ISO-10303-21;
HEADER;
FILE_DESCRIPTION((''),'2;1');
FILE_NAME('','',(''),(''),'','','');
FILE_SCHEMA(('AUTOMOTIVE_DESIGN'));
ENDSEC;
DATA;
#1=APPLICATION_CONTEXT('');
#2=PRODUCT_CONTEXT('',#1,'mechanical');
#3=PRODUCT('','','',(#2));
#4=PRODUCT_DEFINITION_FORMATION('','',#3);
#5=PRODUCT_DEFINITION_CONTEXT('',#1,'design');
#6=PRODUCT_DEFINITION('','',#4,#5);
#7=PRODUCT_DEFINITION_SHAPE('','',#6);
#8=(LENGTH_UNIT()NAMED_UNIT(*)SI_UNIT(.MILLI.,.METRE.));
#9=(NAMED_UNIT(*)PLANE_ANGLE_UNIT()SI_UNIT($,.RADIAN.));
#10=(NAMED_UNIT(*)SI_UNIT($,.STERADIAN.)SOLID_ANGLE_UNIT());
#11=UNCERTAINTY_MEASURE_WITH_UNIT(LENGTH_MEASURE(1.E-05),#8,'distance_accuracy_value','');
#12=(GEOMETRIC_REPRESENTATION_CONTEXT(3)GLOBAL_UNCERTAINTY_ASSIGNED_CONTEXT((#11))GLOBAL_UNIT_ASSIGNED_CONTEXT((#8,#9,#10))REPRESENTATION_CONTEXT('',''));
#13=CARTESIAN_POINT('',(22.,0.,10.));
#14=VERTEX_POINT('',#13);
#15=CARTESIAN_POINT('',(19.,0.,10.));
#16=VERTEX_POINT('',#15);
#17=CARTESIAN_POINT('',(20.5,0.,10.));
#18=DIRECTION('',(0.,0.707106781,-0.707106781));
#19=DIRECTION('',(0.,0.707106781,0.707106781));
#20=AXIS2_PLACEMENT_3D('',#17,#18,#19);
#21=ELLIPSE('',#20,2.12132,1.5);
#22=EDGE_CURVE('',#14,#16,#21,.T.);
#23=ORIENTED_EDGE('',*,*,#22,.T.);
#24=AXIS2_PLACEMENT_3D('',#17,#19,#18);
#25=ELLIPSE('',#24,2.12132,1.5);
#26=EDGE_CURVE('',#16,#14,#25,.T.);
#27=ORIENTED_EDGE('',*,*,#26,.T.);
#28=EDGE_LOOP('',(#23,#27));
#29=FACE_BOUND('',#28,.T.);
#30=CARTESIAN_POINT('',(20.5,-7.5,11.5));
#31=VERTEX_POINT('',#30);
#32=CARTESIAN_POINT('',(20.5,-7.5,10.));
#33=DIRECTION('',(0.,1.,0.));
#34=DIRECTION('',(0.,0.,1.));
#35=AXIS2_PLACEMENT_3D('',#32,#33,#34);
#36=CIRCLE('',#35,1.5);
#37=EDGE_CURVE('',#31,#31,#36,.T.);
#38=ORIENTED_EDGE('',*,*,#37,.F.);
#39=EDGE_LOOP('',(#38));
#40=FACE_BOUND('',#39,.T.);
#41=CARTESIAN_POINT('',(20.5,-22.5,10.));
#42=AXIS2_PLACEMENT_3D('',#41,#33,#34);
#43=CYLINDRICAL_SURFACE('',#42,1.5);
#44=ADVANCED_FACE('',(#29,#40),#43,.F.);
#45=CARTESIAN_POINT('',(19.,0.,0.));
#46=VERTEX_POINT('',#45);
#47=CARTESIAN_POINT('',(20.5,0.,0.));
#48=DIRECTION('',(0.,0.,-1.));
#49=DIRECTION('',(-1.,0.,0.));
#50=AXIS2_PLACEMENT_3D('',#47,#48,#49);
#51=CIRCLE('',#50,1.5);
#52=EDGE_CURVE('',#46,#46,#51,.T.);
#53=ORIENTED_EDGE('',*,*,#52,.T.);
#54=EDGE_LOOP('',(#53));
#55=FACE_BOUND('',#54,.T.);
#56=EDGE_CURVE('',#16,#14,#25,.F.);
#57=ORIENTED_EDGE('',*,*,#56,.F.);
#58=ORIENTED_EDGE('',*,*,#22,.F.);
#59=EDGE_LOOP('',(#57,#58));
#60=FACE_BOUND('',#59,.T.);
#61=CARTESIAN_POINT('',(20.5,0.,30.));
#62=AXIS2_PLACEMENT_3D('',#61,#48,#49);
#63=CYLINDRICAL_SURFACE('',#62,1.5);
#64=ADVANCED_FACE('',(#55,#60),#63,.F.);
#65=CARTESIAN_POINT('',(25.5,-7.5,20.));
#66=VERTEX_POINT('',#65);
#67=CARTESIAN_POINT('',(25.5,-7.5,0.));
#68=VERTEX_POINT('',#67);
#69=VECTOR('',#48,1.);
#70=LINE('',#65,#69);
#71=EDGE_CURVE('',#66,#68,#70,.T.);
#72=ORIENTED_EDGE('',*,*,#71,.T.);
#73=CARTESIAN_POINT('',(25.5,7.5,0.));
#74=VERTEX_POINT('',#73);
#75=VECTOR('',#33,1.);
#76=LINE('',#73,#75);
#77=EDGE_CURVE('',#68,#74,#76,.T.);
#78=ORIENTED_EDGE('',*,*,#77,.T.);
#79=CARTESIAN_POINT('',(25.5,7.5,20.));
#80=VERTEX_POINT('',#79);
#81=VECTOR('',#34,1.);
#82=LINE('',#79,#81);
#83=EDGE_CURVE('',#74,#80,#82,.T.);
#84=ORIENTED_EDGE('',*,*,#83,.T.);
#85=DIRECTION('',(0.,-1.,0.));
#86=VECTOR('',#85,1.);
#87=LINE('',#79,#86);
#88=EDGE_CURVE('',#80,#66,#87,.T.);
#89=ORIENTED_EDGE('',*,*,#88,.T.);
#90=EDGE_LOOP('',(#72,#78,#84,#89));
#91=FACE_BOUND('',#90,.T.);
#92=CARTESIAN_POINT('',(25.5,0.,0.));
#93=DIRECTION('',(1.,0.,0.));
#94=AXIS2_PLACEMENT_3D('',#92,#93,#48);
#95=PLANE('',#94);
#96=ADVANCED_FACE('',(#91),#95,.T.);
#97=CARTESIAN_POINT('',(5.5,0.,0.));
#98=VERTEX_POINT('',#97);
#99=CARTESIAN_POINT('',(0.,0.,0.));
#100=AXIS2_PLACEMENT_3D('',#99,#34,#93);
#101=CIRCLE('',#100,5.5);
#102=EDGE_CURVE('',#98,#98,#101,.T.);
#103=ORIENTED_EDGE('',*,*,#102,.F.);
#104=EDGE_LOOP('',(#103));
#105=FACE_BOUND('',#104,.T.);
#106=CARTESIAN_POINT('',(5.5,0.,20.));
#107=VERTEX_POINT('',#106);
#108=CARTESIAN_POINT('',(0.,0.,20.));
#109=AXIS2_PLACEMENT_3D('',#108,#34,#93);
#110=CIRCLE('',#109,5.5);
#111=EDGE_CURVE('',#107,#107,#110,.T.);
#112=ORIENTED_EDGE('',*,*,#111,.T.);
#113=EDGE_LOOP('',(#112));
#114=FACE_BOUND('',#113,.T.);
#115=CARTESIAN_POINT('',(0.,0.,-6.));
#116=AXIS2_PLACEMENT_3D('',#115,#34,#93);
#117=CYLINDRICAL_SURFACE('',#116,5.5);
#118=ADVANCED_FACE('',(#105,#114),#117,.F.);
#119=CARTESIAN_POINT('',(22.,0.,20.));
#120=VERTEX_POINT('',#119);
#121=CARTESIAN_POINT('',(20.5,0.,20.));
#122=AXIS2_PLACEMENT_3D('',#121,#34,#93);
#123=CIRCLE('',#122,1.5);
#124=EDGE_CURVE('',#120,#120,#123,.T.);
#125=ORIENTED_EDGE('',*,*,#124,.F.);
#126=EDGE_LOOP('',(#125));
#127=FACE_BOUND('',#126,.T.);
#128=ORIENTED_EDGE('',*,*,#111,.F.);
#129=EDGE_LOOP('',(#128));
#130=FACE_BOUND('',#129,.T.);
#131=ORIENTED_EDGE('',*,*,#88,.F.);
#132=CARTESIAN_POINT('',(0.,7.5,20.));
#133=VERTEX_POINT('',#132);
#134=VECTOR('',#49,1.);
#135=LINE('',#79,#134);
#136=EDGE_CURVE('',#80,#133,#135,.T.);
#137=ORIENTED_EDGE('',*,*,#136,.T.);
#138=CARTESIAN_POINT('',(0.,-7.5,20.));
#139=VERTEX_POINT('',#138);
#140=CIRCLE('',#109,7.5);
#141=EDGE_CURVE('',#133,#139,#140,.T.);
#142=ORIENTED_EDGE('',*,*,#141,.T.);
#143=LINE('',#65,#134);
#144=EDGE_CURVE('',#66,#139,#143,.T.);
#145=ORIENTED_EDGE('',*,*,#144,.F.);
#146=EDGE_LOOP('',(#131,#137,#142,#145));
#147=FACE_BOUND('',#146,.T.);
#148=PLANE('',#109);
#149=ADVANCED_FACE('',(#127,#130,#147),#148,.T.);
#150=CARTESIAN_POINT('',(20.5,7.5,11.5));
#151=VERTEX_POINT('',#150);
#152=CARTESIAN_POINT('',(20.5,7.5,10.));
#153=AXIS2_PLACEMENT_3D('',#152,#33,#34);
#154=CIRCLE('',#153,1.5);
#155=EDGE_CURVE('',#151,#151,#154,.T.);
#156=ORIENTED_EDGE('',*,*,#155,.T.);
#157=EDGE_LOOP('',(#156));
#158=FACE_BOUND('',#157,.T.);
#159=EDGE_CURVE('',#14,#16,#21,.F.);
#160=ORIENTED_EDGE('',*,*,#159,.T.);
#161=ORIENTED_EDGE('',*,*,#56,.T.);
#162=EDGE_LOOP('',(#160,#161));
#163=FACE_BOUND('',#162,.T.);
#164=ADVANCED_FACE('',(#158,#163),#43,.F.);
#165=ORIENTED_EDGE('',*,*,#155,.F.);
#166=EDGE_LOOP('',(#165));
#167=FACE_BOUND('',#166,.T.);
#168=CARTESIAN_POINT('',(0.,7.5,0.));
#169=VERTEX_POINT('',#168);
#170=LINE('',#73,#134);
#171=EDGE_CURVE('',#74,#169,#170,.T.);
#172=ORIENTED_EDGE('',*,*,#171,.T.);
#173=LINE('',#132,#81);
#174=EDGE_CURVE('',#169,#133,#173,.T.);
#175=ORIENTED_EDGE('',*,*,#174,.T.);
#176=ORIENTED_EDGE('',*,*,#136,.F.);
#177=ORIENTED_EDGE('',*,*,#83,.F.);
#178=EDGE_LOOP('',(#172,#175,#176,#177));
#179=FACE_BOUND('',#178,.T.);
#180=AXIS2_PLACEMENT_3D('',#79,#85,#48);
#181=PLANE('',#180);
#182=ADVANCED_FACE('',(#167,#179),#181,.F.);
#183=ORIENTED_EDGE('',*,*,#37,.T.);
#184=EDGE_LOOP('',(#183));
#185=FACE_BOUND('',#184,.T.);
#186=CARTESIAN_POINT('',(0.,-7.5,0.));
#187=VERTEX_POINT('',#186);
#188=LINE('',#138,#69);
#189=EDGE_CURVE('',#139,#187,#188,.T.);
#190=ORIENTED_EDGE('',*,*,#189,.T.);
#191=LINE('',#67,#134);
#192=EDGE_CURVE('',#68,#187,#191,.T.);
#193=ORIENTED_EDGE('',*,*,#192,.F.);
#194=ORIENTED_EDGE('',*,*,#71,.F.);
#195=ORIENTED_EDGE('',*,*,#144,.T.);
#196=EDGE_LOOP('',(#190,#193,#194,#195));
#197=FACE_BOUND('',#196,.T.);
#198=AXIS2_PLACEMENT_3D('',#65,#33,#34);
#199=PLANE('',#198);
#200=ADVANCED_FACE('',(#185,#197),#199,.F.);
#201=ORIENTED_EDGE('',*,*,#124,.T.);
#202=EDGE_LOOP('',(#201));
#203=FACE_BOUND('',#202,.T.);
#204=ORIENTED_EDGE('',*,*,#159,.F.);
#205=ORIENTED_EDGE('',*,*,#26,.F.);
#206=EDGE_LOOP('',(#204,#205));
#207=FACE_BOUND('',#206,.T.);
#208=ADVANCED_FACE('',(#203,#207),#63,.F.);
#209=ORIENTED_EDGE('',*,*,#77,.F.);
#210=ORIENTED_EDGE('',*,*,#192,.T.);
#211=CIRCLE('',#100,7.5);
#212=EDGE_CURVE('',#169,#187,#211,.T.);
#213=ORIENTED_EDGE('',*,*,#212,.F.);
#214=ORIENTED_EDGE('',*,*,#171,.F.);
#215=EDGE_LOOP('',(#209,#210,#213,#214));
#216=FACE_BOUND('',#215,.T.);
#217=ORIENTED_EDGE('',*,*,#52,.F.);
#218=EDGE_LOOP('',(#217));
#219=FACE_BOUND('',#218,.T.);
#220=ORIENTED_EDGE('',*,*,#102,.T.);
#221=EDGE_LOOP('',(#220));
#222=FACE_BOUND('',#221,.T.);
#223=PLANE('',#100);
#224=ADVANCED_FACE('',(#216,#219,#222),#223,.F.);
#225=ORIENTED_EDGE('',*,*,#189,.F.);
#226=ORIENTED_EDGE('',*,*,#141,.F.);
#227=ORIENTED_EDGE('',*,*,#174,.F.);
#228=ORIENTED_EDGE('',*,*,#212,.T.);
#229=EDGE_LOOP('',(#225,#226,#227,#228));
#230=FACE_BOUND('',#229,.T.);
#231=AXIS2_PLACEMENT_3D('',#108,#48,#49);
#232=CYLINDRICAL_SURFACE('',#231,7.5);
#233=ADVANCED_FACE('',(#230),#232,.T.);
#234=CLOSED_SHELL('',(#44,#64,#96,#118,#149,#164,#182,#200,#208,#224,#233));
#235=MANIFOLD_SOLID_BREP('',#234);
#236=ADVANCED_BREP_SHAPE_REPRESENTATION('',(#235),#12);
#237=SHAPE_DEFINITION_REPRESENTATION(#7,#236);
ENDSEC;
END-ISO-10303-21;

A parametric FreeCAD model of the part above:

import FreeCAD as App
import Part
import Sketcher
from FreeCAD import Vector


def add_polygon(sketch, points):
    """Adds a closed chain of lines whose ends are joined by coincident constraints."""
    first, n = sketch.GeometryCount, len(points)
    for a, b in zip(points, points[1:] + points[:1]):
        sketch.addGeometry(Part.LineSegment(App.Vector(*a, 0), App.Vector(*b, 0)), False)
    for i in range(n):
        sketch.addConstraint(Sketcher.Constraint("Coincident", first + i, 2, first + (i + 1) % n, 1))

doc = App.newDocument("Part")
body = doc.addObject("PartDesign::Body", "Body")

sketch1 = body.newObject("Sketcher::SketchObject", "Sketch")
sketch1.AttachmentSupport = (doc.getObject("XY_Plane"), [""])
sketch1.MapMode = "FlatFace"
sketch1.addGeometry(Part.Circle(Vector(0, 0, 0), Vector(0, 0, 1), 8), False)
sketch1.addConstraint([
    Sketcher.Constraint("Coincident", 0, 3, -1, 1),
    Sketcher.Constraint("Diameter", 0, 15.0),
])
pad1 = body.newObject("PartDesign::Pad", "Pad")
pad1.Profile = sketch1
pad1.Length = 20

sketch2 = body.newObject("Sketcher::SketchObject", "Sketch001")
sketch2.AttachmentSupport = (doc.getObject("YZ_Plane"), [""])
sketch2.MapMode = "FlatFace"
add_polygon(sketch2, [(8, 20), (-8, 20), (-8, 0), (8, 0)])
sketch2.addConstraint([
    Sketcher.Constraint("Horizontal", 0),
    Sketcher.Constraint("Vertical", 1),
    Sketcher.Constraint("Horizontal", 2),
    Sketcher.Constraint("Vertical", 3),
    Sketcher.Constraint("Symmetric", 1, 2, 2, 2, -1, 1),
    Sketcher.Constraint("DistanceX", 0, 2, 0, 1, 15.0),
    Sketcher.Constraint("DistanceY", 1, 2, 1, 1, 20.0),
])
pad2 = body.newObject("PartDesign::Pad", "Pad001")
pad2.Profile = sketch2
pad2.Length = 25.5

sketch3 = body.newObject("Sketcher::SketchObject", "Sketch002")
sketch3.AttachmentSupport = (doc.getObject("XY_Plane"), [""])
sketch3.MapMode = "FlatFace"
sketch3.AttachmentOffset = App.Placement(Vector(0, 0, 20), App.Rotation())
sketch3.addGeometry(Part.Circle(Vector(0, 0, 0), Vector(0, 0, 1), 6), False)
sketch3.addConstraint([
    Sketcher.Constraint("Coincident", 0, 3, -1, 1),
    Sketcher.Constraint("Diameter", 0, 11.0),
])
pocket1 = body.newObject("PartDesign::Pocket", "Pocket")
pocket1.Profile = sketch3
pocket1.Length = 26

sketch4 = body.newObject("Sketcher::SketchObject", "Sketch003")
sketch4.AttachmentSupport = (doc.getObject("XZ_Plane"), [""])
sketch4.MapMode = "FlatFace"
sketch4.AttachmentOffset = App.Placement(Vector(0, 0, -7.5), App.Rotation())
sketch4.addGeometry(Part.Circle(Vector(20.5, 10, 0), Vector(0, 0, 1), 1.5), False)
sketch4.addConstraint([
    Sketcher.Constraint("Diameter", 0, 3.0),
    Sketcher.Constraint("DistanceY", -1, 1, 0, 3, 10.0),
    Sketcher.Constraint("DistanceX", -1, 1, 0, 3, 20.5),
])
pocket2 = body.newObject("PartDesign::Pocket", "Pocket001")
pocket2.Profile = sketch4
pocket2.Length = 30
pocket2.Reversed = True

sketch5 = body.newObject("Sketcher::SketchObject", "Sketch004")
sketch5.AttachmentSupport = (doc.getObject("XY_Plane"), [""])
sketch5.MapMode = "FlatFace"
sketch5.addGeometry(Part.Circle(Vector(20.5, 0, 0), Vector(0, 0, 1), 1.5), False)
sketch5.addConstraint([
    Sketcher.Constraint("PointOnObject", 0, 3, -1),
    Sketcher.Constraint("Diameter", 0, 3.0),
    Sketcher.Constraint("DistanceX", -1, 1, 0, 3, 20.5),
])
pocket3 = body.newObject("PartDesign::Pocket", "Pocket002")
pocket3.Profile = sketch5
pocket3.Length = 30
pocket3.Reversed = True

doc.recompute()
